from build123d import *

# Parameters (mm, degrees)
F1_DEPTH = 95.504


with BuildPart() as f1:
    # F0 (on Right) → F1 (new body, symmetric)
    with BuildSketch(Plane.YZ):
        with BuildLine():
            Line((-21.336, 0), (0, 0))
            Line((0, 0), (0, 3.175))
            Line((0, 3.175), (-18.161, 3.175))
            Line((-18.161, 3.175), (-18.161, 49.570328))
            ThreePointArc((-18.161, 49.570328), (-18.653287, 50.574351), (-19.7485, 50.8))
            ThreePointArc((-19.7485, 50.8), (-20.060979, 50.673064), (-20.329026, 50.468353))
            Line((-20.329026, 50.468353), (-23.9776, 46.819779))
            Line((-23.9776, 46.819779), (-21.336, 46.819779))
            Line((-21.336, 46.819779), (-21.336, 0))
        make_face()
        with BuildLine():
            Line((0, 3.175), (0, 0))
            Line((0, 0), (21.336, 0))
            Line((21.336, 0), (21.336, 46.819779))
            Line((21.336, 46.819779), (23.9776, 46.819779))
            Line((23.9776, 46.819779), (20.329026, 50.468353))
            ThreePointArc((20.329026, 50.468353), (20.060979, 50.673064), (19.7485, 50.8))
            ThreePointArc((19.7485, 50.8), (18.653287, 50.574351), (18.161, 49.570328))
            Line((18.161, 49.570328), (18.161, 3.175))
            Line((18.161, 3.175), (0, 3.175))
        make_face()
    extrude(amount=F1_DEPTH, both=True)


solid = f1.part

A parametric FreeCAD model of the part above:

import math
import FreeCAD as App
import Part
import Sketcher
Q = App.Units.Quantity

doc = App.newDocument("Part")
body = doc.addObject("PartDesign::Body", "Body")

sketch1 = body.newObject("Sketcher::SketchObject", "Sketch")
sketch1.AttachmentSupport = (doc.getObject("YZ_Plane"), [""])
sketch1.MapMode = "FlatFace"
sketch1.addGeometry(Part.LineSegment(App.Vector(-21.336, 0, 0), App.Vector(21.336, 0, 0)), False)
sketch1.addGeometry(Part.LineSegment(App.Vector(21.336, 0, 0), App.Vector(21.336, 46.819779, 0)), False)
sketch1.addGeometry(Part.LineSegment(App.Vector(21.336, 46.819779, 0), App.Vector(23.9776, 46.819779, 0)), False)
sketch1.addGeometry(Part.LineSegment(App.Vector(23.9776, 46.819779, 0), App.Vector(20.329026, 50.468353, 0)), False)
sketch1.addGeometry(Part.ArcOfCircle(Part.Circle(App.Vector(19.431004, 49.570335, 0), App.Vector(0, 0, 1), 1.269992), math.radians(44.999881), math.radians(75.522581)), False)
sketch1.addGeometry(Part.ArcOfCircle(Part.Circle(App.Vector(19.431, 49.570328, 0), App.Vector(0, 0, 1), 1.27), math.radians(75.522483), math.radians(179.999995)), False)
sketch1.addGeometry(Part.LineSegment(App.Vector(18.161, 49.570328, 0), App.Vector(18.161, 3.175, 0)), False)
sketch1.addGeometry(Part.LineSegment(App.Vector(18.161, 3.175, 0), App.Vector(-18.161, 3.175, 0)), False)
sketch1.addGeometry(Part.LineSegment(App.Vector(-18.161, 3.175, 0), App.Vector(-18.161, 49.570328, 0)), False)
sketch1.addGeometry(Part.ArcOfCircle(Part.Circle(App.Vector(-19.431, 49.570328, 0), App.Vector(0, 0, 1), 1.27), math.radians(0.000005), math.radians(104.477517)), False)
sketch1.addGeometry(Part.ArcOfCircle(Part.Circle(App.Vector(-19.431004, 49.570335, 0), App.Vector(0, 0, 1), 1.269992), math.radians(104.477419), math.radians(135.000119)), False)
sketch1.addGeometry(Part.LineSegment(App.Vector(-20.329026, 50.468353, 0), App.Vector(-23.9776, 46.819779, 0)), False)
sketch1.addGeometry(Part.LineSegment(App.Vector(-23.9776, 46.819779, 0), App.Vector(-21.336, 46.819779, 0)), False)
sketch1.addGeometry(Part.LineSegment(App.Vector(-21.336, 46.819779, 0), App.Vector(-21.336, 0, 0)), False)
sketch1.addConstraint(Sketcher.Constraint("Coincident", 0, 2, 1, 1))
sketch1.addConstraint(Sketcher.Constraint("Coincident", 1, 2, 2, 1))
sketch1.addConstraint(Sketcher.Constraint("Coincident", 2, 2, 3, 1))
sketch1.addConstraint(Sketcher.Constraint("Coincident", 3, 2, 4, 1))
sketch1.addConstraint(Sketcher.Constraint("Tangent", 4, 2, 5, 1))
sketch1.addConstraint(Sketcher.Constraint("Tangent", 5, 2, 6, 1))
sketch1.addConstraint(Sketcher.Constraint("Coincident", 6, 2, 7, 1))
sketch1.addConstraint(Sketcher.Constraint("Coincident", 7, 2, 8, 1))
sketch1.addConstraint(Sketcher.Constraint("Tangent", 8, 2, 9, 1))
sketch1.addConstraint(Sketcher.Constraint("Tangent", 9, 2, 10, 1))
sketch1.addConstraint(Sketcher.Constraint("Coincident", 10, 2, 11, 1))
sketch1.addConstraint(Sketcher.Constraint("Coincident", 11, 2, 12, 1))
sketch1.addConstraint(Sketcher.Constraint("Coincident", 12, 2, 13, 1))
sketch1.addConstraint(Sketcher.Constraint("Coincident", 13, 2, 0, 1))
sketch1.addConstraint(Sketcher.Constraint("Horizontal", 0))
sketch1.addConstraint(Sketcher.Constraint("Vertical", 1))
sketch1.addConstraint(Sketcher.Constraint("Horizontal", 2))
sketch1.addConstraint(Sketcher.Constraint("Vertical", 6))
sketch1.addConstraint(Sketcher.Constraint("Horizontal", 7))
sketch1.addConstraint(Sketcher.Constraint("Vertical", 8))
sketch1.addConstraint(Sketcher.Constraint("Horizontal", 12))
sketch1.addConstraint(Sketcher.Constraint("Vertical", 13))
sketch1.addConstraint(Sketcher.Constraint("Equal", 5, 9))
sketch1.addConstraint(Sketcher.Constraint("Equal", 4, 10))
sketch1.addConstraint(Sketcher.Constraint("Symmetric", 0, 2, 13, 2, -1, 1))
sketch1.addConstraint(Sketcher.Constraint("Symmetric", 4, 3, 9, 3, -2))
sketch1.addConstraint(Sketcher.Constraint("Symmetric", 4, 2, 9, 2, -2))
sketch1.addConstraint(Sketcher.Constraint("Symmetric", 2, 2, 11, 2, -2))
sketch1.addConstraint(Sketcher.Constraint("Perpendicular", 3, 11))
sketch1.addConstraint(Sketcher.Constraint("Horizontal", 3, 2, 10, 2))
sketch1.addConstraint(Sketcher.Constraint("Radius", 5, Q("0.05 in")))
sketch1.addConstraint(Sketcher.Constraint("DistanceY", -1, 1, 4, 2, Q("2 in")))
sketch1.addConstraint(Sketcher.Constraint("DistanceX", 0, 1, 0, 2, Q("1.68 in")))
sketch1.addConstraint(Sketcher.Constraint("DistanceX", 7, 2, 7, 1, Q("1.43 in")))
sketch1.addConstraint(Sketcher.Constraint("DistanceX", 2, 1, 2, 2, Q("0.104 in")))
sketch1.addConstraint(Sketcher.Constraint("DistanceY", -1, 1, 6, 2, Q("0.125 in")))
sketch1.addConstraint(Sketcher.Constraint("DistanceX", 4, 2, 1, 2, Q("0.0625 in")))
sketch1.addConstraint(Sketcher.Constraint("DistanceY", 4, 3, 3, 2, 0.898018))
pad1 = body.newObject("PartDesign::Pad", "Pad")
pad1.Profile = sketch1
pad1.Length = Q("7.52 in")
pad1.Midplane = True

doc.recompute()
